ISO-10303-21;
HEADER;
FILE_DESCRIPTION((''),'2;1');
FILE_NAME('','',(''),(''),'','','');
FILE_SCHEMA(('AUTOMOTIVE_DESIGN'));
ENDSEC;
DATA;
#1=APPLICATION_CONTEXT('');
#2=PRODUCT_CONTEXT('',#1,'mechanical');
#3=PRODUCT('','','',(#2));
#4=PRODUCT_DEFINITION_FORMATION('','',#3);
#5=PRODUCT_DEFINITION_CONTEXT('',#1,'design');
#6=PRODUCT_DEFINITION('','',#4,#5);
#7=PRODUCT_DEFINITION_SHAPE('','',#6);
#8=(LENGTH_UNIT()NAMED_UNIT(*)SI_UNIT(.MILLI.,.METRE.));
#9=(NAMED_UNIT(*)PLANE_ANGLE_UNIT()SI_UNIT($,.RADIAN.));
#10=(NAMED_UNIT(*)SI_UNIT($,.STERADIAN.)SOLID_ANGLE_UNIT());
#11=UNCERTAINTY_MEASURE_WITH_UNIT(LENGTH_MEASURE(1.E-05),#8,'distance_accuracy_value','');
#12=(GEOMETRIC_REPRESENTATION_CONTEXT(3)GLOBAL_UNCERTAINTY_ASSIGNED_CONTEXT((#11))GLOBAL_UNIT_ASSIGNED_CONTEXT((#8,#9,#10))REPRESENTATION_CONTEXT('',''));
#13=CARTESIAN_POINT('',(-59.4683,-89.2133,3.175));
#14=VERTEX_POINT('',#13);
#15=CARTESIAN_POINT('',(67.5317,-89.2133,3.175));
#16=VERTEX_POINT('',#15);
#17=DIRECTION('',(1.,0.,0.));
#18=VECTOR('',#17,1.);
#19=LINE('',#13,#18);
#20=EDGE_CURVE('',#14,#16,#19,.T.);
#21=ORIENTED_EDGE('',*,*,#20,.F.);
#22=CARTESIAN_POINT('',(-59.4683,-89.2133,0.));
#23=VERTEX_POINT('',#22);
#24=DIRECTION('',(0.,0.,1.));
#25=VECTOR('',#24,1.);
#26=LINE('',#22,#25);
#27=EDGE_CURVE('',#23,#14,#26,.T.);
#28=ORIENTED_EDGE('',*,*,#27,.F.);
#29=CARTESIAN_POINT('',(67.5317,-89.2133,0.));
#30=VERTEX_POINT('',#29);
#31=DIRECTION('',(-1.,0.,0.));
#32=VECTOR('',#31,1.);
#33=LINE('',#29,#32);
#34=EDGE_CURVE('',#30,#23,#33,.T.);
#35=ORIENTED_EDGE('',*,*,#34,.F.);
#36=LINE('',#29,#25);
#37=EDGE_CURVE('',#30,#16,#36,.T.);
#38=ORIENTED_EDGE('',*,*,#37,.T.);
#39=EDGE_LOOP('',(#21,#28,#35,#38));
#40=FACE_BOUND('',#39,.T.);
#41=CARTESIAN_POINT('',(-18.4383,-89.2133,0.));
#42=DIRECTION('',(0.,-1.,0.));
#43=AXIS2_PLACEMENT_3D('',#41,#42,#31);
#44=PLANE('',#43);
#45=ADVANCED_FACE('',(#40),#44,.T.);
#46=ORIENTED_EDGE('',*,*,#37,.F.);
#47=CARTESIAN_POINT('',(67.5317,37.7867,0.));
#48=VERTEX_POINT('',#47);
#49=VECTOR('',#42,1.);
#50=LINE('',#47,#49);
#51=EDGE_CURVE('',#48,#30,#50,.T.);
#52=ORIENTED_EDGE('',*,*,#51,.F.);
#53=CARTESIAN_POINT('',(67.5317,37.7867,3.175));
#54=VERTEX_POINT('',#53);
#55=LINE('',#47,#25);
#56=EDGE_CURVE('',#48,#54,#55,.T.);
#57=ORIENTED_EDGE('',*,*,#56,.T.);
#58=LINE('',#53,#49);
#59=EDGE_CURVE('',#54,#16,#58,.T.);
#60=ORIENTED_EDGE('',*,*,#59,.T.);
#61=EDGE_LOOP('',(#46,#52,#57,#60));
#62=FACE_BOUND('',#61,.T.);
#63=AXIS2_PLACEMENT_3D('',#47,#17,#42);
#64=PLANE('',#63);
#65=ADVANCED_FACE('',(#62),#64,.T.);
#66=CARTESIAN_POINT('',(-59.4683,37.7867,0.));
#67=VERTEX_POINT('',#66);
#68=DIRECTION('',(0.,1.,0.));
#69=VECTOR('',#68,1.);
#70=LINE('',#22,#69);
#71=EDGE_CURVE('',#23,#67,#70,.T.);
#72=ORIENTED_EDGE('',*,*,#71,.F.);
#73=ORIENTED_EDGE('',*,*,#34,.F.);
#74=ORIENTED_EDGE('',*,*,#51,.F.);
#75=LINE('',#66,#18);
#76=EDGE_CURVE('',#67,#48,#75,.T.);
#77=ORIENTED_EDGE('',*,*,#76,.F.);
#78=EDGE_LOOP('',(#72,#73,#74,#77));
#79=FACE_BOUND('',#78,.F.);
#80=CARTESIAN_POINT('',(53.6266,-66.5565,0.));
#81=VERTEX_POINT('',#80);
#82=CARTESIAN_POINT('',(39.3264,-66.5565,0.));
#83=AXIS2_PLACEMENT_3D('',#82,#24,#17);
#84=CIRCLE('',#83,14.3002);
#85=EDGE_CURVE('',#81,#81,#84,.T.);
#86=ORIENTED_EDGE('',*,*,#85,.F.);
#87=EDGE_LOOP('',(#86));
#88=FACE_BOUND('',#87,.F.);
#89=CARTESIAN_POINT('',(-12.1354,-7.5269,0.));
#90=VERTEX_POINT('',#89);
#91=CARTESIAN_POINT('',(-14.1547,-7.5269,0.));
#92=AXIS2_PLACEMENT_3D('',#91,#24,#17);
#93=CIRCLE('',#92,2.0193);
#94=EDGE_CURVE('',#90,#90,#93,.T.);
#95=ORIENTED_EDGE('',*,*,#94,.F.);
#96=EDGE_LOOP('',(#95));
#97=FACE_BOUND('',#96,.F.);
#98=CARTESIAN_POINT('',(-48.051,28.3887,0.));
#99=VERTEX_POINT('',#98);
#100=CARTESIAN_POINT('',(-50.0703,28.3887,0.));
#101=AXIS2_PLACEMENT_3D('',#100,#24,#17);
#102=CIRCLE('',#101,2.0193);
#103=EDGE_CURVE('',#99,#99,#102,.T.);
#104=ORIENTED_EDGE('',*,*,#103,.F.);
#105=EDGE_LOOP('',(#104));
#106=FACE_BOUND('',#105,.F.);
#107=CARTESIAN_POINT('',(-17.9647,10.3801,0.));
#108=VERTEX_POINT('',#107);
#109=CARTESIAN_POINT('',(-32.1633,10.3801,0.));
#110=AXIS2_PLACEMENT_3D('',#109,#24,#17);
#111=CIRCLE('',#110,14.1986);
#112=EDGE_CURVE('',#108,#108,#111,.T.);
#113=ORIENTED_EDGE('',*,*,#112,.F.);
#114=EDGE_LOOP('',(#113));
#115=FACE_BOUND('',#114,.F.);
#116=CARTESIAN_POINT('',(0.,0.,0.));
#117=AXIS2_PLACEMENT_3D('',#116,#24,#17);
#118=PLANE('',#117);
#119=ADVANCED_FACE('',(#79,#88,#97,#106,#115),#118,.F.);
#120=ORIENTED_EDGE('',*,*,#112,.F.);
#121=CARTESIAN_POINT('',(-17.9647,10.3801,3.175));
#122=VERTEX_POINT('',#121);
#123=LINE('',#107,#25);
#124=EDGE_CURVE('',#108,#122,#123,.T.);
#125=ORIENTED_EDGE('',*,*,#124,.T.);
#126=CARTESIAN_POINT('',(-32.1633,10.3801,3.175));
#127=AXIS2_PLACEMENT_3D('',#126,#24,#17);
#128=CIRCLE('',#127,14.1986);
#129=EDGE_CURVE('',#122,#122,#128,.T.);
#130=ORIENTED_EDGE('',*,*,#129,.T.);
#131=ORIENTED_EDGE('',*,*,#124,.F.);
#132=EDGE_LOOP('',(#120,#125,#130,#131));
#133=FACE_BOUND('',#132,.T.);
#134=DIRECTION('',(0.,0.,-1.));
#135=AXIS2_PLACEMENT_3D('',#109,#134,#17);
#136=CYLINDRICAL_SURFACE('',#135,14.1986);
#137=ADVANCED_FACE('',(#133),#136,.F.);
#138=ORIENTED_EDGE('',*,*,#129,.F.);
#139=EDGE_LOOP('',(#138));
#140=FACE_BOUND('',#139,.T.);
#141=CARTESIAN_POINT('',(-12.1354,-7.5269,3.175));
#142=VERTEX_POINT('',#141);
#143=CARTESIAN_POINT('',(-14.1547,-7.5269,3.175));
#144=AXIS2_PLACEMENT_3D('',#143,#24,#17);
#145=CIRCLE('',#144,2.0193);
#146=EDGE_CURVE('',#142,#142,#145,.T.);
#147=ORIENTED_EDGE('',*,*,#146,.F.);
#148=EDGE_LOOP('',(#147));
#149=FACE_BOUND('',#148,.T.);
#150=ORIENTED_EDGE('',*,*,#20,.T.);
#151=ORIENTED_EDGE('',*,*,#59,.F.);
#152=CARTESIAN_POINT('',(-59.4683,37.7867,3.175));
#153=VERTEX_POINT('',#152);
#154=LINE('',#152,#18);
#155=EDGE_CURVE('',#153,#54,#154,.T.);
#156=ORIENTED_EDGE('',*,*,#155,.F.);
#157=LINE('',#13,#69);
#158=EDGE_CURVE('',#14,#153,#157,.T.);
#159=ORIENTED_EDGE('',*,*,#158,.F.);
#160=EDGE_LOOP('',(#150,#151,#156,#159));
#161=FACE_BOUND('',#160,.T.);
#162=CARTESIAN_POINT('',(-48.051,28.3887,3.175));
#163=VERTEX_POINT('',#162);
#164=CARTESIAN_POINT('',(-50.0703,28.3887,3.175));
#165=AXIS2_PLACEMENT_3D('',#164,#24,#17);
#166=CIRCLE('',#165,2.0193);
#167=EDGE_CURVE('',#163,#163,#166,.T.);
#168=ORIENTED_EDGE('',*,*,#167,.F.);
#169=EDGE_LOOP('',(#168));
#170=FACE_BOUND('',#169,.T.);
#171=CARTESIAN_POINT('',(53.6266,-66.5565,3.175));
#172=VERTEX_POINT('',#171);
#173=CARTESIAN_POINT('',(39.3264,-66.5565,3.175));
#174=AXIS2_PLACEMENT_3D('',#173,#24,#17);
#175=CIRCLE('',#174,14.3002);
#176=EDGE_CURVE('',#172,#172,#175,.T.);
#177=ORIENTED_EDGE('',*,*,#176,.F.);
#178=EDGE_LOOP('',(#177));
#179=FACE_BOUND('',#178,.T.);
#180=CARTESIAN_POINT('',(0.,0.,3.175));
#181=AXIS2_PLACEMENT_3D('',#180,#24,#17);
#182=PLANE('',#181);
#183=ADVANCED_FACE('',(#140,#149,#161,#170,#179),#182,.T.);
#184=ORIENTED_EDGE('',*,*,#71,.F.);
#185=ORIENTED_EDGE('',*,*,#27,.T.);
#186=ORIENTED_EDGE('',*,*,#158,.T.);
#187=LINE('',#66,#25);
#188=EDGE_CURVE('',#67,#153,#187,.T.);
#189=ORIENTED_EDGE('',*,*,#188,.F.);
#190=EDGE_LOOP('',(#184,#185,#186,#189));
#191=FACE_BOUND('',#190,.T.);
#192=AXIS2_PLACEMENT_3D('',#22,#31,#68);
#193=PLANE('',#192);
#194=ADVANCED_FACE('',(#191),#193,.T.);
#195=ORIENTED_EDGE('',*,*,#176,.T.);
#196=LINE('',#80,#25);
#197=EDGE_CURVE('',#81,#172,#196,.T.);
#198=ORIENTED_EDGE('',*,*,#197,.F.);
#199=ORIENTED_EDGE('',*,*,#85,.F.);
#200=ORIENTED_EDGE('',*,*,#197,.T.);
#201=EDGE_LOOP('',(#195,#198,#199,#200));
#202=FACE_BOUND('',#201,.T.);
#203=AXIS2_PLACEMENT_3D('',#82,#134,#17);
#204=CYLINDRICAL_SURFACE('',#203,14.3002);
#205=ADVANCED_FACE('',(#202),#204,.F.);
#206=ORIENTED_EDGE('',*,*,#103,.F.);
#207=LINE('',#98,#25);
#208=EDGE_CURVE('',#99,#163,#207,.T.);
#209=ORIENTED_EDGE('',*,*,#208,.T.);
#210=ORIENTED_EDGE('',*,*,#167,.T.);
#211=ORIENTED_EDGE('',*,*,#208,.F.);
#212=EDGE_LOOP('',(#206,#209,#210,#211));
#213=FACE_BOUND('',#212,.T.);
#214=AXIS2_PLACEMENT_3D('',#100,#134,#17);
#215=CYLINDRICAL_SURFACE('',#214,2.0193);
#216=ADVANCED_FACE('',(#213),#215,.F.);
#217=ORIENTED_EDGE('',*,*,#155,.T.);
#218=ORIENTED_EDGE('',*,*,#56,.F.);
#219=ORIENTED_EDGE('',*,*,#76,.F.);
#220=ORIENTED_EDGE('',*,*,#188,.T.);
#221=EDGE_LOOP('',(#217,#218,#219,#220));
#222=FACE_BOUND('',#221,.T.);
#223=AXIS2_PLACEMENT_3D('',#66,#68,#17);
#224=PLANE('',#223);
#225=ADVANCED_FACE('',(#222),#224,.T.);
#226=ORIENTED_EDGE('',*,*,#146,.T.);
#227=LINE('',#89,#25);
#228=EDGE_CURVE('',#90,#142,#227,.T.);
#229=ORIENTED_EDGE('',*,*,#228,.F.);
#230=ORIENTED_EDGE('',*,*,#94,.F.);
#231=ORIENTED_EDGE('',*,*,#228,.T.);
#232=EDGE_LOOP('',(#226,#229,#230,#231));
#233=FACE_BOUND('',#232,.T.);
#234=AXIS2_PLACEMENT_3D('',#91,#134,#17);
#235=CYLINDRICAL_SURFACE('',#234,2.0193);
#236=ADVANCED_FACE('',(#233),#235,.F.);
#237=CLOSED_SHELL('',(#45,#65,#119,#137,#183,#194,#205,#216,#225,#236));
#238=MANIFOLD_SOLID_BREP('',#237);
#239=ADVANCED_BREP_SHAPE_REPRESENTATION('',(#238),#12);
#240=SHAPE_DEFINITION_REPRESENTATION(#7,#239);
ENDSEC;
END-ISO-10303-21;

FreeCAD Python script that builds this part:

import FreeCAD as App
import Part
import Sketcher
Q = App.Units.Quantity

doc = App.newDocument("Part")
body = doc.addObject("PartDesign::Body", "Body")

# Sketch on XY plane
sketch1 = body.newObject("Sketcher::SketchObject", "Sketch")
sketch1.AttachmentSupport = (doc.getObject("XY_Plane"), [""])
sketch1.MapMode = "FlatFace"
sketch1.addGeometry([
    Part.LineSegment(App.Vector(67.5, 37.8, 0), App.Vector(-59.5, 37.8, 0)),  # 0
    Part.LineSegment(App.Vector(-59.5, 37.8, 0), App.Vector(-59.5, -89.2, 0)),  # 1
    Part.LineSegment(App.Vector(-59.5, -89.2, 0), App.Vector(67.5, -89.2, 0)),  # 2
    Part.LineSegment(App.Vector(67.5, -89.2, 0), App.Vector(67.5, 37.8, 0)),  # 3
    Part.Circle(App.Vector(39.3, -66.6, 0), App.Vector(0, 0, 1), 14.3),  # 4
    Part.Circle(App.Vector(-50.1, 28.4, 0), App.Vector(0, 0, 1), 2),  # 5
    Part.Circle(App.Vector(-14.2, -7.5, 0), App.Vector(0, 0, 1), 2),  # 6
    Part.Circle(App.Vector(-32.2, 10.4, 0), App.Vector(0, 0, 1), 14.2),  # 7
], False)
sketch1.addConstraint([
    Sketcher.Constraint("Coincident", 0, 2, 1, 1),
    Sketcher.Constraint("Coincident", 1, 2, 2, 1),
    Sketcher.Constraint("Coincident", 2, 2, 3, 1),
    Sketcher.Constraint("Coincident", 3, 2, 0, 1),
    Sketcher.Constraint("Horizontal", 0),
    Sketcher.Constraint("Vertical", 1),
    Sketcher.Constraint("Horizontal", 2),
    Sketcher.Constraint("Vertical", 3),
    Sketcher.Constraint("Equal", 5, 6),
    Sketcher.Constraint("Equal", 2, 1),
    Sketcher.Constraint("DistanceX", 0, 2, 0, 1, Q("5 in")),
    Sketcher.Constraint("Diameter", 4, Q("1.126 in")),
    Sketcher.Constraint("Diameter", 5, Q("0.159 in")),
    Sketcher.Constraint("Diameter", 7, Q("1.118 in")),
    Sketcher.Constraint("DistanceX", 0, 2, 5, 3, Q("0.37 in")),
    Sketcher.Constraint("DistanceY", 5, 3, 0, 2, Q("0.37 in")),
    Sketcher.Constraint("DistanceY", 4, 3, 5, 3, Q("3.738 in")),
    Sketcher.Constraint("DistanceX", 5, 3, 6, 3, Q("1.414 in")),
    Sketcher.Constraint("DistanceY", 6, 3, 5, 3, Q("1.414 in")),
    Sketcher.Constraint("DistanceX", 7, 3, 6, 3, Q("0.709 in")),
    Sketcher.Constraint("DistanceY", 6, 3, 7, 3, Q("0.705 in")),
    Sketcher.Constraint("DistanceX", -1, 1, 4, 3, 39.3264),
    Sketcher.Constraint("DistanceY", 4, 3, -1, 1, 66.5565),
    Sketcher.Constraint("DistanceX", 5, 3, -1, 1, 50.0703),
])
pad1 = body.newObject("PartDesign::Pad", "Pad")
pad1.Profile = sketch1
pad1.Length = Q("0.125 in")

doc.recompute()
